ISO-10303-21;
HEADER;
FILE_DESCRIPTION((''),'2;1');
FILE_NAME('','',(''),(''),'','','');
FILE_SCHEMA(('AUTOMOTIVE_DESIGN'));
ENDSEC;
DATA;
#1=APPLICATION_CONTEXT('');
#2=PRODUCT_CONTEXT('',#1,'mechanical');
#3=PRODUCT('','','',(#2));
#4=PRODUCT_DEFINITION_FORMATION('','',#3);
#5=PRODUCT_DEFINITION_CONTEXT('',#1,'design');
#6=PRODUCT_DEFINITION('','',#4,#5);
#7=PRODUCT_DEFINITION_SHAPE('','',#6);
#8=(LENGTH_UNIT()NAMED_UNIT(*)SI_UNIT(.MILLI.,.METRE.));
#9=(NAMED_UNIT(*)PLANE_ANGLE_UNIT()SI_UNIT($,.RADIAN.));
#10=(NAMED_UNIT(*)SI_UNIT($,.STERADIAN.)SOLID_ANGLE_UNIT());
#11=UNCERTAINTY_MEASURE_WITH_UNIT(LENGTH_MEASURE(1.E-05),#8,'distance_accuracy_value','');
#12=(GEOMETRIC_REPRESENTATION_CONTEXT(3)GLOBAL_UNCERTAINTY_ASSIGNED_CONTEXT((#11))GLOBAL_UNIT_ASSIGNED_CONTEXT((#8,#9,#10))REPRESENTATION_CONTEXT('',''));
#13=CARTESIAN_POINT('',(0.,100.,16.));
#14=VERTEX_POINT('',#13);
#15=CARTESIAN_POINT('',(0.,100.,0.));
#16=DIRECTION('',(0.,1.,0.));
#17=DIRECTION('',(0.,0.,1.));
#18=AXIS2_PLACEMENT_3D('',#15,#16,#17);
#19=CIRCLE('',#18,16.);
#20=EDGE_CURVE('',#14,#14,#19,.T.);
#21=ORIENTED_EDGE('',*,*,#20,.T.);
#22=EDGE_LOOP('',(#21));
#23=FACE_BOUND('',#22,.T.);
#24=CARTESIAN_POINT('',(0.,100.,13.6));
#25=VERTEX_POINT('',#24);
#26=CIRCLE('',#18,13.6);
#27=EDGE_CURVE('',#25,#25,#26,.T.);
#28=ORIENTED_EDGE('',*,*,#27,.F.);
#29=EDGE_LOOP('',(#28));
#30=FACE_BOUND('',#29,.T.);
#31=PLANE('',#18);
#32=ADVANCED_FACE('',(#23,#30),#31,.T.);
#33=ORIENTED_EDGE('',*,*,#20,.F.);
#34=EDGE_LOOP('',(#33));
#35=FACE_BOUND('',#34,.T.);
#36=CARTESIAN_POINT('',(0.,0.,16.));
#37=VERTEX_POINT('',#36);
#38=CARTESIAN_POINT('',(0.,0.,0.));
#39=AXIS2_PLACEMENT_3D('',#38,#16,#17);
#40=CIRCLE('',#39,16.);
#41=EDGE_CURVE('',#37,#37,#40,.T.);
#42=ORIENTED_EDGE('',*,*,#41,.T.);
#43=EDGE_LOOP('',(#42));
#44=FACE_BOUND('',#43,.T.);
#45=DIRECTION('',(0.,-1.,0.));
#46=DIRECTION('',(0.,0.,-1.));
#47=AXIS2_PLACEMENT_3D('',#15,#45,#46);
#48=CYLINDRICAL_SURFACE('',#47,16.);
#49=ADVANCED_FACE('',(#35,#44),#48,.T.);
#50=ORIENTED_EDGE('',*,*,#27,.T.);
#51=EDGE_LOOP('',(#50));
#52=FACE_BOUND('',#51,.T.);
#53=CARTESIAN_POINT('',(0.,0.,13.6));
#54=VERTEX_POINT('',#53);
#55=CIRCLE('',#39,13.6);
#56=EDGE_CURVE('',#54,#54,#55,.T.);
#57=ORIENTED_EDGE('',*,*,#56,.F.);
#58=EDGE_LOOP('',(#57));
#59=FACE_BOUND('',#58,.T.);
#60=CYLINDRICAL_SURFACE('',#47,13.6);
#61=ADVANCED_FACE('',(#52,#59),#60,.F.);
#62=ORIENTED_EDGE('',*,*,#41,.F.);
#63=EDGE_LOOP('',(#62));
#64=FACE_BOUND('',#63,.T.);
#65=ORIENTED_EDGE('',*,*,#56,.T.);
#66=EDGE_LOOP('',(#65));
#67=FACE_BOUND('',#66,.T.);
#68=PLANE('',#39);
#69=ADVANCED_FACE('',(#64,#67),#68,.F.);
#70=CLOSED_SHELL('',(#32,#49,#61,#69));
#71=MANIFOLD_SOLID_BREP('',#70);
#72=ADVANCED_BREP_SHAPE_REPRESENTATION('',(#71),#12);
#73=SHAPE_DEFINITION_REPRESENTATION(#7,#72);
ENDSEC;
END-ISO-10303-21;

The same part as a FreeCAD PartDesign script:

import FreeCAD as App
import Part
import Sketcher

V = App.Vector

doc = App.newDocument("Part")
body = doc.addObject("PartDesign::Body", "Body")

# Sketch on XZ plane
sketch1 = body.newObject("Sketcher::SketchObject", "Sketch")
sketch1.AttachmentSupport = (doc.getObject("XZ_Plane"), [""])
sketch1.MapMode = "FlatFace"
sketch1.addGeometry([
    Part.Circle(V(0, 0, 0), V(0, 0, 1), 16),
    Part.Circle(V(0, 0, 0), V(0, 0, 1), 13.6),
], False)
sketch1.addConstraint([
    Sketcher.Constraint("Coincident", 0, 3, -1, 1),
    Sketcher.Constraint("Coincident", 1, 3, -1, 1),
    Sketcher.Constraint("Diameter", 0, 32.0),
    Sketcher.Constraint("Diameter", 1, 27.2),
])
pad1 = body.newObject("PartDesign::Pad", "Pad")
pad1.Profile = sketch1
pad1.Length = 100
pad1.Reversed = True

doc.recompute()
